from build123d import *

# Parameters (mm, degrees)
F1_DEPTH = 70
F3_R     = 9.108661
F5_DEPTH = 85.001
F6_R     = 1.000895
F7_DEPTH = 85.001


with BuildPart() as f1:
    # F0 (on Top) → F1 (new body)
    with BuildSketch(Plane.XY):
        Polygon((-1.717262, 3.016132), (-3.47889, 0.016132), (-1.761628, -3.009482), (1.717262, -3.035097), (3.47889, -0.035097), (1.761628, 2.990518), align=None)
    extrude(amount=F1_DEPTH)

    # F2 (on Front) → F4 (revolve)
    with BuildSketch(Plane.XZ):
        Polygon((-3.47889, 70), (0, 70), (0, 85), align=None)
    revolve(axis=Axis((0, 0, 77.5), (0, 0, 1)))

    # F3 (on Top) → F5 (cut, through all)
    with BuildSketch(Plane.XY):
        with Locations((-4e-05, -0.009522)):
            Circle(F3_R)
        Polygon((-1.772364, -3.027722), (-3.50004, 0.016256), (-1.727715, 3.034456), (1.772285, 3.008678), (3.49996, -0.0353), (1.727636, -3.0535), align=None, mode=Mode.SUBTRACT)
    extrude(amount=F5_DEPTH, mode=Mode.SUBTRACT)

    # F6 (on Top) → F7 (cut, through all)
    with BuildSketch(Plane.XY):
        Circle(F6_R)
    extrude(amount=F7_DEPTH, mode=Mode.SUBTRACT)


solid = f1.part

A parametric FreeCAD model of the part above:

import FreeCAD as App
import Part
import Sketcher


def add_polygon(sketch, points):
    """Adds a closed chain of lines whose ends are joined by coincident constraints."""
    first, n = sketch.GeometryCount, len(points)
    for a, b in zip(points, points[1:] + points[:1]):
        sketch.addGeometry(Part.LineSegment(App.Vector(*a, 0), App.Vector(*b, 0)), False)
    for i in range(n):
        sketch.addConstraint(Sketcher.Constraint("Coincident", first + i, 2, first + (i + 1) % n, 1))

doc = App.newDocument("Part")
body = doc.addObject("PartDesign::Body", "Body")

sketch1 = doc.addObject("Sketcher::SketchObject", "Sketch")
body.addObject(sketch1)
sketch1.AttachmentSupport = (doc.XY_Plane, [""])
sketch1.MapMode = "FlatFace"
add_polygon(sketch1, [(-1.717262, 3.016132), (-3.47889, 0.016132), (-1.761628, -3.009482), (1.717262, -3.035097), (3.47889, -0.035097), (1.761628, 2.990518)])
sketch1.addConstraint(Sketcher.Constraint("Parallel", 0, 3))
sketch1.addConstraint(Sketcher.Constraint("Parallel", 1, 4))
sketch1.addConstraint(Sketcher.Constraint("Parallel", 2, 5))
sketch1.addConstraint(Sketcher.Constraint("Equal", 0, 1))
sketch1.addConstraint(Sketcher.Constraint("Equal", 1, 2))
sketch1.addConstraint(Sketcher.Constraint("Equal", 2, 3))
sketch1.addConstraint(Sketcher.Constraint("DistanceY", 2, 2, 3, 2, 3.0))
sketch1.addConstraint(Sketcher.Constraint("DistanceY", 1, 2, 4, 2, 6.0))
sketch1.addConstraint(Sketcher.Constraint("DistanceX", 0, 2, -1, 1, 3.47889))
sketch1.addConstraint(Sketcher.Constraint("DistanceX", -1, 1, 3, 2, 3.47889))
sketch1.addConstraint(Sketcher.Constraint("DistanceY", -1, 1, 5, 2, 3.016132))
sketch1.addConstraint(Sketcher.Constraint("DistanceX", 0, 2, 1, 2, 1.717262))
pad1 = doc.addObject("PartDesign::Pad", "Pad")
body.addObject(pad1)
pad1.Profile = sketch1
pad1.Length = 70

sketch2 = doc.addObject("Sketcher::SketchObject", "Sketch001")
body.addObject(sketch2)
sketch2.AttachmentSupport = (doc.XZ_Plane, [""])
sketch2.MapMode = "FlatFace"
add_polygon(sketch2, [(-3.47889, 70), (0, 70), (0, 85)])
sketch2.addConstraint(Sketcher.Constraint("Horizontal", 0))
sketch2.addConstraint(Sketcher.Constraint("Vertical", 1))
sketch2.addConstraint(Sketcher.Constraint("PointOnObject", 0, 2, -2))
sketch2.addConstraint(Sketcher.Constraint("DistanceY", 1, 1, 1, 2, 15.0))
sketch2.addConstraint(Sketcher.Constraint("DistanceY", -1, 1, 0, 2, 70.0))
sketch2.addConstraint(Sketcher.Constraint("DistanceX", 0, 1, 0, 2, 3.47889))
revolution = doc.addObject("PartDesign::Revolution", "Revolution")
body.addObject(revolution)
revolution.Profile = sketch2
revolution.ReferenceAxis = (sketch2, ["V_Axis"])
revolution.Angle = 360

sketch3 = doc.addObject("Sketcher::SketchObject", "Sketch002")
body.addObject(sketch3)
sketch3.AttachmentSupport = (doc.XY_Plane, [""])
sketch3.MapMode = "FlatFace"
sketch3.addGeometry(Part.Circle(App.Vector(-0.00004, -0.009522, 0), App.Vector(0, 0, 1), 9.108661), False)
add_polygon(sketch3, [(1.727636, -3.0535), (-1.772364, -3.027722), (-3.50004, 0.016256), (-1.727715, 3.034456), (1.772285, 3.008678), (3.49996, -0.0353)])
sketch3.addConstraint(Sketcher.Constraint("Parallel", 1, 4))
sketch3.addConstraint(Sketcher.Constraint("Parallel", 2, 5))
sketch3.addConstraint(Sketcher.Constraint("Parallel", 3, 6))
sketch3.addConstraint(Sketcher.Constraint("Equal", 1, 2))
sketch3.addConstraint(Sketcher.Constraint("Equal", 2, 3))
sketch3.addConstraint(Sketcher.Constraint("Equal", 3, 4))
sketch3.addConstraint(Sketcher.Constraint("DistanceX", 2, 2, 5, 2, 7.0))
sketch3.addConstraint(Sketcher.Constraint("DistanceX", 2, 2, 0, 3, 3.5))
sketch3.addConstraint(Sketcher.Constraint("DistanceX", 3, 2, 4, 2, 3.5))
sketch3.addConstraint(Sketcher.Constraint("Diameter", 0, 18.217322))
sketch3.addConstraint(Sketcher.Constraint("DistanceY", 5, 2, -1, 1, 0.0353))
sketch3.addConstraint(Sketcher.Constraint("DistanceY", 6, 2, -1, 1, 3.0535))
sketch3.addConstraint(Sketcher.Constraint("DistanceY", 1, 2, 0, 3, 3.0182))
sketch3.addConstraint(Sketcher.Constraint("DistanceY", 0, 3, 4, 2, 3.0182))
sketch3.addConstraint(Sketcher.Constraint("DistanceX", 2, 2, -1, 1, 3.50004))
pocket1 = doc.addObject("PartDesign::Pocket", "Pocket")
body.addObject(pocket1)
pocket1.Profile = sketch3
pocket1.Type = "ThroughAll"
pocket1.Reversed = True

sketch4 = doc.addObject("Sketcher::SketchObject", "Sketch003")
body.addObject(sketch4)
sketch4.AttachmentSupport = (doc.XY_Plane, [""])
sketch4.MapMode = "FlatFace"
sketch4.addGeometry(Part.Circle(App.Vector(0, 0, 0), App.Vector(0, 0, 1), 1.000895), False)
sketch4.addConstraint(Sketcher.Constraint("Coincident", 0, 3, -1, 1))
sketch4.addConstraint(Sketcher.Constraint("Diameter", 0, 2.00179))
pocket2 = doc.addObject("PartDesign::Pocket", "Pocket001")
body.addObject(pocket2)
pocket2.Profile = sketch4
pocket2.Type = "ThroughAll"
pocket2.Reversed = True

doc.recompute()
